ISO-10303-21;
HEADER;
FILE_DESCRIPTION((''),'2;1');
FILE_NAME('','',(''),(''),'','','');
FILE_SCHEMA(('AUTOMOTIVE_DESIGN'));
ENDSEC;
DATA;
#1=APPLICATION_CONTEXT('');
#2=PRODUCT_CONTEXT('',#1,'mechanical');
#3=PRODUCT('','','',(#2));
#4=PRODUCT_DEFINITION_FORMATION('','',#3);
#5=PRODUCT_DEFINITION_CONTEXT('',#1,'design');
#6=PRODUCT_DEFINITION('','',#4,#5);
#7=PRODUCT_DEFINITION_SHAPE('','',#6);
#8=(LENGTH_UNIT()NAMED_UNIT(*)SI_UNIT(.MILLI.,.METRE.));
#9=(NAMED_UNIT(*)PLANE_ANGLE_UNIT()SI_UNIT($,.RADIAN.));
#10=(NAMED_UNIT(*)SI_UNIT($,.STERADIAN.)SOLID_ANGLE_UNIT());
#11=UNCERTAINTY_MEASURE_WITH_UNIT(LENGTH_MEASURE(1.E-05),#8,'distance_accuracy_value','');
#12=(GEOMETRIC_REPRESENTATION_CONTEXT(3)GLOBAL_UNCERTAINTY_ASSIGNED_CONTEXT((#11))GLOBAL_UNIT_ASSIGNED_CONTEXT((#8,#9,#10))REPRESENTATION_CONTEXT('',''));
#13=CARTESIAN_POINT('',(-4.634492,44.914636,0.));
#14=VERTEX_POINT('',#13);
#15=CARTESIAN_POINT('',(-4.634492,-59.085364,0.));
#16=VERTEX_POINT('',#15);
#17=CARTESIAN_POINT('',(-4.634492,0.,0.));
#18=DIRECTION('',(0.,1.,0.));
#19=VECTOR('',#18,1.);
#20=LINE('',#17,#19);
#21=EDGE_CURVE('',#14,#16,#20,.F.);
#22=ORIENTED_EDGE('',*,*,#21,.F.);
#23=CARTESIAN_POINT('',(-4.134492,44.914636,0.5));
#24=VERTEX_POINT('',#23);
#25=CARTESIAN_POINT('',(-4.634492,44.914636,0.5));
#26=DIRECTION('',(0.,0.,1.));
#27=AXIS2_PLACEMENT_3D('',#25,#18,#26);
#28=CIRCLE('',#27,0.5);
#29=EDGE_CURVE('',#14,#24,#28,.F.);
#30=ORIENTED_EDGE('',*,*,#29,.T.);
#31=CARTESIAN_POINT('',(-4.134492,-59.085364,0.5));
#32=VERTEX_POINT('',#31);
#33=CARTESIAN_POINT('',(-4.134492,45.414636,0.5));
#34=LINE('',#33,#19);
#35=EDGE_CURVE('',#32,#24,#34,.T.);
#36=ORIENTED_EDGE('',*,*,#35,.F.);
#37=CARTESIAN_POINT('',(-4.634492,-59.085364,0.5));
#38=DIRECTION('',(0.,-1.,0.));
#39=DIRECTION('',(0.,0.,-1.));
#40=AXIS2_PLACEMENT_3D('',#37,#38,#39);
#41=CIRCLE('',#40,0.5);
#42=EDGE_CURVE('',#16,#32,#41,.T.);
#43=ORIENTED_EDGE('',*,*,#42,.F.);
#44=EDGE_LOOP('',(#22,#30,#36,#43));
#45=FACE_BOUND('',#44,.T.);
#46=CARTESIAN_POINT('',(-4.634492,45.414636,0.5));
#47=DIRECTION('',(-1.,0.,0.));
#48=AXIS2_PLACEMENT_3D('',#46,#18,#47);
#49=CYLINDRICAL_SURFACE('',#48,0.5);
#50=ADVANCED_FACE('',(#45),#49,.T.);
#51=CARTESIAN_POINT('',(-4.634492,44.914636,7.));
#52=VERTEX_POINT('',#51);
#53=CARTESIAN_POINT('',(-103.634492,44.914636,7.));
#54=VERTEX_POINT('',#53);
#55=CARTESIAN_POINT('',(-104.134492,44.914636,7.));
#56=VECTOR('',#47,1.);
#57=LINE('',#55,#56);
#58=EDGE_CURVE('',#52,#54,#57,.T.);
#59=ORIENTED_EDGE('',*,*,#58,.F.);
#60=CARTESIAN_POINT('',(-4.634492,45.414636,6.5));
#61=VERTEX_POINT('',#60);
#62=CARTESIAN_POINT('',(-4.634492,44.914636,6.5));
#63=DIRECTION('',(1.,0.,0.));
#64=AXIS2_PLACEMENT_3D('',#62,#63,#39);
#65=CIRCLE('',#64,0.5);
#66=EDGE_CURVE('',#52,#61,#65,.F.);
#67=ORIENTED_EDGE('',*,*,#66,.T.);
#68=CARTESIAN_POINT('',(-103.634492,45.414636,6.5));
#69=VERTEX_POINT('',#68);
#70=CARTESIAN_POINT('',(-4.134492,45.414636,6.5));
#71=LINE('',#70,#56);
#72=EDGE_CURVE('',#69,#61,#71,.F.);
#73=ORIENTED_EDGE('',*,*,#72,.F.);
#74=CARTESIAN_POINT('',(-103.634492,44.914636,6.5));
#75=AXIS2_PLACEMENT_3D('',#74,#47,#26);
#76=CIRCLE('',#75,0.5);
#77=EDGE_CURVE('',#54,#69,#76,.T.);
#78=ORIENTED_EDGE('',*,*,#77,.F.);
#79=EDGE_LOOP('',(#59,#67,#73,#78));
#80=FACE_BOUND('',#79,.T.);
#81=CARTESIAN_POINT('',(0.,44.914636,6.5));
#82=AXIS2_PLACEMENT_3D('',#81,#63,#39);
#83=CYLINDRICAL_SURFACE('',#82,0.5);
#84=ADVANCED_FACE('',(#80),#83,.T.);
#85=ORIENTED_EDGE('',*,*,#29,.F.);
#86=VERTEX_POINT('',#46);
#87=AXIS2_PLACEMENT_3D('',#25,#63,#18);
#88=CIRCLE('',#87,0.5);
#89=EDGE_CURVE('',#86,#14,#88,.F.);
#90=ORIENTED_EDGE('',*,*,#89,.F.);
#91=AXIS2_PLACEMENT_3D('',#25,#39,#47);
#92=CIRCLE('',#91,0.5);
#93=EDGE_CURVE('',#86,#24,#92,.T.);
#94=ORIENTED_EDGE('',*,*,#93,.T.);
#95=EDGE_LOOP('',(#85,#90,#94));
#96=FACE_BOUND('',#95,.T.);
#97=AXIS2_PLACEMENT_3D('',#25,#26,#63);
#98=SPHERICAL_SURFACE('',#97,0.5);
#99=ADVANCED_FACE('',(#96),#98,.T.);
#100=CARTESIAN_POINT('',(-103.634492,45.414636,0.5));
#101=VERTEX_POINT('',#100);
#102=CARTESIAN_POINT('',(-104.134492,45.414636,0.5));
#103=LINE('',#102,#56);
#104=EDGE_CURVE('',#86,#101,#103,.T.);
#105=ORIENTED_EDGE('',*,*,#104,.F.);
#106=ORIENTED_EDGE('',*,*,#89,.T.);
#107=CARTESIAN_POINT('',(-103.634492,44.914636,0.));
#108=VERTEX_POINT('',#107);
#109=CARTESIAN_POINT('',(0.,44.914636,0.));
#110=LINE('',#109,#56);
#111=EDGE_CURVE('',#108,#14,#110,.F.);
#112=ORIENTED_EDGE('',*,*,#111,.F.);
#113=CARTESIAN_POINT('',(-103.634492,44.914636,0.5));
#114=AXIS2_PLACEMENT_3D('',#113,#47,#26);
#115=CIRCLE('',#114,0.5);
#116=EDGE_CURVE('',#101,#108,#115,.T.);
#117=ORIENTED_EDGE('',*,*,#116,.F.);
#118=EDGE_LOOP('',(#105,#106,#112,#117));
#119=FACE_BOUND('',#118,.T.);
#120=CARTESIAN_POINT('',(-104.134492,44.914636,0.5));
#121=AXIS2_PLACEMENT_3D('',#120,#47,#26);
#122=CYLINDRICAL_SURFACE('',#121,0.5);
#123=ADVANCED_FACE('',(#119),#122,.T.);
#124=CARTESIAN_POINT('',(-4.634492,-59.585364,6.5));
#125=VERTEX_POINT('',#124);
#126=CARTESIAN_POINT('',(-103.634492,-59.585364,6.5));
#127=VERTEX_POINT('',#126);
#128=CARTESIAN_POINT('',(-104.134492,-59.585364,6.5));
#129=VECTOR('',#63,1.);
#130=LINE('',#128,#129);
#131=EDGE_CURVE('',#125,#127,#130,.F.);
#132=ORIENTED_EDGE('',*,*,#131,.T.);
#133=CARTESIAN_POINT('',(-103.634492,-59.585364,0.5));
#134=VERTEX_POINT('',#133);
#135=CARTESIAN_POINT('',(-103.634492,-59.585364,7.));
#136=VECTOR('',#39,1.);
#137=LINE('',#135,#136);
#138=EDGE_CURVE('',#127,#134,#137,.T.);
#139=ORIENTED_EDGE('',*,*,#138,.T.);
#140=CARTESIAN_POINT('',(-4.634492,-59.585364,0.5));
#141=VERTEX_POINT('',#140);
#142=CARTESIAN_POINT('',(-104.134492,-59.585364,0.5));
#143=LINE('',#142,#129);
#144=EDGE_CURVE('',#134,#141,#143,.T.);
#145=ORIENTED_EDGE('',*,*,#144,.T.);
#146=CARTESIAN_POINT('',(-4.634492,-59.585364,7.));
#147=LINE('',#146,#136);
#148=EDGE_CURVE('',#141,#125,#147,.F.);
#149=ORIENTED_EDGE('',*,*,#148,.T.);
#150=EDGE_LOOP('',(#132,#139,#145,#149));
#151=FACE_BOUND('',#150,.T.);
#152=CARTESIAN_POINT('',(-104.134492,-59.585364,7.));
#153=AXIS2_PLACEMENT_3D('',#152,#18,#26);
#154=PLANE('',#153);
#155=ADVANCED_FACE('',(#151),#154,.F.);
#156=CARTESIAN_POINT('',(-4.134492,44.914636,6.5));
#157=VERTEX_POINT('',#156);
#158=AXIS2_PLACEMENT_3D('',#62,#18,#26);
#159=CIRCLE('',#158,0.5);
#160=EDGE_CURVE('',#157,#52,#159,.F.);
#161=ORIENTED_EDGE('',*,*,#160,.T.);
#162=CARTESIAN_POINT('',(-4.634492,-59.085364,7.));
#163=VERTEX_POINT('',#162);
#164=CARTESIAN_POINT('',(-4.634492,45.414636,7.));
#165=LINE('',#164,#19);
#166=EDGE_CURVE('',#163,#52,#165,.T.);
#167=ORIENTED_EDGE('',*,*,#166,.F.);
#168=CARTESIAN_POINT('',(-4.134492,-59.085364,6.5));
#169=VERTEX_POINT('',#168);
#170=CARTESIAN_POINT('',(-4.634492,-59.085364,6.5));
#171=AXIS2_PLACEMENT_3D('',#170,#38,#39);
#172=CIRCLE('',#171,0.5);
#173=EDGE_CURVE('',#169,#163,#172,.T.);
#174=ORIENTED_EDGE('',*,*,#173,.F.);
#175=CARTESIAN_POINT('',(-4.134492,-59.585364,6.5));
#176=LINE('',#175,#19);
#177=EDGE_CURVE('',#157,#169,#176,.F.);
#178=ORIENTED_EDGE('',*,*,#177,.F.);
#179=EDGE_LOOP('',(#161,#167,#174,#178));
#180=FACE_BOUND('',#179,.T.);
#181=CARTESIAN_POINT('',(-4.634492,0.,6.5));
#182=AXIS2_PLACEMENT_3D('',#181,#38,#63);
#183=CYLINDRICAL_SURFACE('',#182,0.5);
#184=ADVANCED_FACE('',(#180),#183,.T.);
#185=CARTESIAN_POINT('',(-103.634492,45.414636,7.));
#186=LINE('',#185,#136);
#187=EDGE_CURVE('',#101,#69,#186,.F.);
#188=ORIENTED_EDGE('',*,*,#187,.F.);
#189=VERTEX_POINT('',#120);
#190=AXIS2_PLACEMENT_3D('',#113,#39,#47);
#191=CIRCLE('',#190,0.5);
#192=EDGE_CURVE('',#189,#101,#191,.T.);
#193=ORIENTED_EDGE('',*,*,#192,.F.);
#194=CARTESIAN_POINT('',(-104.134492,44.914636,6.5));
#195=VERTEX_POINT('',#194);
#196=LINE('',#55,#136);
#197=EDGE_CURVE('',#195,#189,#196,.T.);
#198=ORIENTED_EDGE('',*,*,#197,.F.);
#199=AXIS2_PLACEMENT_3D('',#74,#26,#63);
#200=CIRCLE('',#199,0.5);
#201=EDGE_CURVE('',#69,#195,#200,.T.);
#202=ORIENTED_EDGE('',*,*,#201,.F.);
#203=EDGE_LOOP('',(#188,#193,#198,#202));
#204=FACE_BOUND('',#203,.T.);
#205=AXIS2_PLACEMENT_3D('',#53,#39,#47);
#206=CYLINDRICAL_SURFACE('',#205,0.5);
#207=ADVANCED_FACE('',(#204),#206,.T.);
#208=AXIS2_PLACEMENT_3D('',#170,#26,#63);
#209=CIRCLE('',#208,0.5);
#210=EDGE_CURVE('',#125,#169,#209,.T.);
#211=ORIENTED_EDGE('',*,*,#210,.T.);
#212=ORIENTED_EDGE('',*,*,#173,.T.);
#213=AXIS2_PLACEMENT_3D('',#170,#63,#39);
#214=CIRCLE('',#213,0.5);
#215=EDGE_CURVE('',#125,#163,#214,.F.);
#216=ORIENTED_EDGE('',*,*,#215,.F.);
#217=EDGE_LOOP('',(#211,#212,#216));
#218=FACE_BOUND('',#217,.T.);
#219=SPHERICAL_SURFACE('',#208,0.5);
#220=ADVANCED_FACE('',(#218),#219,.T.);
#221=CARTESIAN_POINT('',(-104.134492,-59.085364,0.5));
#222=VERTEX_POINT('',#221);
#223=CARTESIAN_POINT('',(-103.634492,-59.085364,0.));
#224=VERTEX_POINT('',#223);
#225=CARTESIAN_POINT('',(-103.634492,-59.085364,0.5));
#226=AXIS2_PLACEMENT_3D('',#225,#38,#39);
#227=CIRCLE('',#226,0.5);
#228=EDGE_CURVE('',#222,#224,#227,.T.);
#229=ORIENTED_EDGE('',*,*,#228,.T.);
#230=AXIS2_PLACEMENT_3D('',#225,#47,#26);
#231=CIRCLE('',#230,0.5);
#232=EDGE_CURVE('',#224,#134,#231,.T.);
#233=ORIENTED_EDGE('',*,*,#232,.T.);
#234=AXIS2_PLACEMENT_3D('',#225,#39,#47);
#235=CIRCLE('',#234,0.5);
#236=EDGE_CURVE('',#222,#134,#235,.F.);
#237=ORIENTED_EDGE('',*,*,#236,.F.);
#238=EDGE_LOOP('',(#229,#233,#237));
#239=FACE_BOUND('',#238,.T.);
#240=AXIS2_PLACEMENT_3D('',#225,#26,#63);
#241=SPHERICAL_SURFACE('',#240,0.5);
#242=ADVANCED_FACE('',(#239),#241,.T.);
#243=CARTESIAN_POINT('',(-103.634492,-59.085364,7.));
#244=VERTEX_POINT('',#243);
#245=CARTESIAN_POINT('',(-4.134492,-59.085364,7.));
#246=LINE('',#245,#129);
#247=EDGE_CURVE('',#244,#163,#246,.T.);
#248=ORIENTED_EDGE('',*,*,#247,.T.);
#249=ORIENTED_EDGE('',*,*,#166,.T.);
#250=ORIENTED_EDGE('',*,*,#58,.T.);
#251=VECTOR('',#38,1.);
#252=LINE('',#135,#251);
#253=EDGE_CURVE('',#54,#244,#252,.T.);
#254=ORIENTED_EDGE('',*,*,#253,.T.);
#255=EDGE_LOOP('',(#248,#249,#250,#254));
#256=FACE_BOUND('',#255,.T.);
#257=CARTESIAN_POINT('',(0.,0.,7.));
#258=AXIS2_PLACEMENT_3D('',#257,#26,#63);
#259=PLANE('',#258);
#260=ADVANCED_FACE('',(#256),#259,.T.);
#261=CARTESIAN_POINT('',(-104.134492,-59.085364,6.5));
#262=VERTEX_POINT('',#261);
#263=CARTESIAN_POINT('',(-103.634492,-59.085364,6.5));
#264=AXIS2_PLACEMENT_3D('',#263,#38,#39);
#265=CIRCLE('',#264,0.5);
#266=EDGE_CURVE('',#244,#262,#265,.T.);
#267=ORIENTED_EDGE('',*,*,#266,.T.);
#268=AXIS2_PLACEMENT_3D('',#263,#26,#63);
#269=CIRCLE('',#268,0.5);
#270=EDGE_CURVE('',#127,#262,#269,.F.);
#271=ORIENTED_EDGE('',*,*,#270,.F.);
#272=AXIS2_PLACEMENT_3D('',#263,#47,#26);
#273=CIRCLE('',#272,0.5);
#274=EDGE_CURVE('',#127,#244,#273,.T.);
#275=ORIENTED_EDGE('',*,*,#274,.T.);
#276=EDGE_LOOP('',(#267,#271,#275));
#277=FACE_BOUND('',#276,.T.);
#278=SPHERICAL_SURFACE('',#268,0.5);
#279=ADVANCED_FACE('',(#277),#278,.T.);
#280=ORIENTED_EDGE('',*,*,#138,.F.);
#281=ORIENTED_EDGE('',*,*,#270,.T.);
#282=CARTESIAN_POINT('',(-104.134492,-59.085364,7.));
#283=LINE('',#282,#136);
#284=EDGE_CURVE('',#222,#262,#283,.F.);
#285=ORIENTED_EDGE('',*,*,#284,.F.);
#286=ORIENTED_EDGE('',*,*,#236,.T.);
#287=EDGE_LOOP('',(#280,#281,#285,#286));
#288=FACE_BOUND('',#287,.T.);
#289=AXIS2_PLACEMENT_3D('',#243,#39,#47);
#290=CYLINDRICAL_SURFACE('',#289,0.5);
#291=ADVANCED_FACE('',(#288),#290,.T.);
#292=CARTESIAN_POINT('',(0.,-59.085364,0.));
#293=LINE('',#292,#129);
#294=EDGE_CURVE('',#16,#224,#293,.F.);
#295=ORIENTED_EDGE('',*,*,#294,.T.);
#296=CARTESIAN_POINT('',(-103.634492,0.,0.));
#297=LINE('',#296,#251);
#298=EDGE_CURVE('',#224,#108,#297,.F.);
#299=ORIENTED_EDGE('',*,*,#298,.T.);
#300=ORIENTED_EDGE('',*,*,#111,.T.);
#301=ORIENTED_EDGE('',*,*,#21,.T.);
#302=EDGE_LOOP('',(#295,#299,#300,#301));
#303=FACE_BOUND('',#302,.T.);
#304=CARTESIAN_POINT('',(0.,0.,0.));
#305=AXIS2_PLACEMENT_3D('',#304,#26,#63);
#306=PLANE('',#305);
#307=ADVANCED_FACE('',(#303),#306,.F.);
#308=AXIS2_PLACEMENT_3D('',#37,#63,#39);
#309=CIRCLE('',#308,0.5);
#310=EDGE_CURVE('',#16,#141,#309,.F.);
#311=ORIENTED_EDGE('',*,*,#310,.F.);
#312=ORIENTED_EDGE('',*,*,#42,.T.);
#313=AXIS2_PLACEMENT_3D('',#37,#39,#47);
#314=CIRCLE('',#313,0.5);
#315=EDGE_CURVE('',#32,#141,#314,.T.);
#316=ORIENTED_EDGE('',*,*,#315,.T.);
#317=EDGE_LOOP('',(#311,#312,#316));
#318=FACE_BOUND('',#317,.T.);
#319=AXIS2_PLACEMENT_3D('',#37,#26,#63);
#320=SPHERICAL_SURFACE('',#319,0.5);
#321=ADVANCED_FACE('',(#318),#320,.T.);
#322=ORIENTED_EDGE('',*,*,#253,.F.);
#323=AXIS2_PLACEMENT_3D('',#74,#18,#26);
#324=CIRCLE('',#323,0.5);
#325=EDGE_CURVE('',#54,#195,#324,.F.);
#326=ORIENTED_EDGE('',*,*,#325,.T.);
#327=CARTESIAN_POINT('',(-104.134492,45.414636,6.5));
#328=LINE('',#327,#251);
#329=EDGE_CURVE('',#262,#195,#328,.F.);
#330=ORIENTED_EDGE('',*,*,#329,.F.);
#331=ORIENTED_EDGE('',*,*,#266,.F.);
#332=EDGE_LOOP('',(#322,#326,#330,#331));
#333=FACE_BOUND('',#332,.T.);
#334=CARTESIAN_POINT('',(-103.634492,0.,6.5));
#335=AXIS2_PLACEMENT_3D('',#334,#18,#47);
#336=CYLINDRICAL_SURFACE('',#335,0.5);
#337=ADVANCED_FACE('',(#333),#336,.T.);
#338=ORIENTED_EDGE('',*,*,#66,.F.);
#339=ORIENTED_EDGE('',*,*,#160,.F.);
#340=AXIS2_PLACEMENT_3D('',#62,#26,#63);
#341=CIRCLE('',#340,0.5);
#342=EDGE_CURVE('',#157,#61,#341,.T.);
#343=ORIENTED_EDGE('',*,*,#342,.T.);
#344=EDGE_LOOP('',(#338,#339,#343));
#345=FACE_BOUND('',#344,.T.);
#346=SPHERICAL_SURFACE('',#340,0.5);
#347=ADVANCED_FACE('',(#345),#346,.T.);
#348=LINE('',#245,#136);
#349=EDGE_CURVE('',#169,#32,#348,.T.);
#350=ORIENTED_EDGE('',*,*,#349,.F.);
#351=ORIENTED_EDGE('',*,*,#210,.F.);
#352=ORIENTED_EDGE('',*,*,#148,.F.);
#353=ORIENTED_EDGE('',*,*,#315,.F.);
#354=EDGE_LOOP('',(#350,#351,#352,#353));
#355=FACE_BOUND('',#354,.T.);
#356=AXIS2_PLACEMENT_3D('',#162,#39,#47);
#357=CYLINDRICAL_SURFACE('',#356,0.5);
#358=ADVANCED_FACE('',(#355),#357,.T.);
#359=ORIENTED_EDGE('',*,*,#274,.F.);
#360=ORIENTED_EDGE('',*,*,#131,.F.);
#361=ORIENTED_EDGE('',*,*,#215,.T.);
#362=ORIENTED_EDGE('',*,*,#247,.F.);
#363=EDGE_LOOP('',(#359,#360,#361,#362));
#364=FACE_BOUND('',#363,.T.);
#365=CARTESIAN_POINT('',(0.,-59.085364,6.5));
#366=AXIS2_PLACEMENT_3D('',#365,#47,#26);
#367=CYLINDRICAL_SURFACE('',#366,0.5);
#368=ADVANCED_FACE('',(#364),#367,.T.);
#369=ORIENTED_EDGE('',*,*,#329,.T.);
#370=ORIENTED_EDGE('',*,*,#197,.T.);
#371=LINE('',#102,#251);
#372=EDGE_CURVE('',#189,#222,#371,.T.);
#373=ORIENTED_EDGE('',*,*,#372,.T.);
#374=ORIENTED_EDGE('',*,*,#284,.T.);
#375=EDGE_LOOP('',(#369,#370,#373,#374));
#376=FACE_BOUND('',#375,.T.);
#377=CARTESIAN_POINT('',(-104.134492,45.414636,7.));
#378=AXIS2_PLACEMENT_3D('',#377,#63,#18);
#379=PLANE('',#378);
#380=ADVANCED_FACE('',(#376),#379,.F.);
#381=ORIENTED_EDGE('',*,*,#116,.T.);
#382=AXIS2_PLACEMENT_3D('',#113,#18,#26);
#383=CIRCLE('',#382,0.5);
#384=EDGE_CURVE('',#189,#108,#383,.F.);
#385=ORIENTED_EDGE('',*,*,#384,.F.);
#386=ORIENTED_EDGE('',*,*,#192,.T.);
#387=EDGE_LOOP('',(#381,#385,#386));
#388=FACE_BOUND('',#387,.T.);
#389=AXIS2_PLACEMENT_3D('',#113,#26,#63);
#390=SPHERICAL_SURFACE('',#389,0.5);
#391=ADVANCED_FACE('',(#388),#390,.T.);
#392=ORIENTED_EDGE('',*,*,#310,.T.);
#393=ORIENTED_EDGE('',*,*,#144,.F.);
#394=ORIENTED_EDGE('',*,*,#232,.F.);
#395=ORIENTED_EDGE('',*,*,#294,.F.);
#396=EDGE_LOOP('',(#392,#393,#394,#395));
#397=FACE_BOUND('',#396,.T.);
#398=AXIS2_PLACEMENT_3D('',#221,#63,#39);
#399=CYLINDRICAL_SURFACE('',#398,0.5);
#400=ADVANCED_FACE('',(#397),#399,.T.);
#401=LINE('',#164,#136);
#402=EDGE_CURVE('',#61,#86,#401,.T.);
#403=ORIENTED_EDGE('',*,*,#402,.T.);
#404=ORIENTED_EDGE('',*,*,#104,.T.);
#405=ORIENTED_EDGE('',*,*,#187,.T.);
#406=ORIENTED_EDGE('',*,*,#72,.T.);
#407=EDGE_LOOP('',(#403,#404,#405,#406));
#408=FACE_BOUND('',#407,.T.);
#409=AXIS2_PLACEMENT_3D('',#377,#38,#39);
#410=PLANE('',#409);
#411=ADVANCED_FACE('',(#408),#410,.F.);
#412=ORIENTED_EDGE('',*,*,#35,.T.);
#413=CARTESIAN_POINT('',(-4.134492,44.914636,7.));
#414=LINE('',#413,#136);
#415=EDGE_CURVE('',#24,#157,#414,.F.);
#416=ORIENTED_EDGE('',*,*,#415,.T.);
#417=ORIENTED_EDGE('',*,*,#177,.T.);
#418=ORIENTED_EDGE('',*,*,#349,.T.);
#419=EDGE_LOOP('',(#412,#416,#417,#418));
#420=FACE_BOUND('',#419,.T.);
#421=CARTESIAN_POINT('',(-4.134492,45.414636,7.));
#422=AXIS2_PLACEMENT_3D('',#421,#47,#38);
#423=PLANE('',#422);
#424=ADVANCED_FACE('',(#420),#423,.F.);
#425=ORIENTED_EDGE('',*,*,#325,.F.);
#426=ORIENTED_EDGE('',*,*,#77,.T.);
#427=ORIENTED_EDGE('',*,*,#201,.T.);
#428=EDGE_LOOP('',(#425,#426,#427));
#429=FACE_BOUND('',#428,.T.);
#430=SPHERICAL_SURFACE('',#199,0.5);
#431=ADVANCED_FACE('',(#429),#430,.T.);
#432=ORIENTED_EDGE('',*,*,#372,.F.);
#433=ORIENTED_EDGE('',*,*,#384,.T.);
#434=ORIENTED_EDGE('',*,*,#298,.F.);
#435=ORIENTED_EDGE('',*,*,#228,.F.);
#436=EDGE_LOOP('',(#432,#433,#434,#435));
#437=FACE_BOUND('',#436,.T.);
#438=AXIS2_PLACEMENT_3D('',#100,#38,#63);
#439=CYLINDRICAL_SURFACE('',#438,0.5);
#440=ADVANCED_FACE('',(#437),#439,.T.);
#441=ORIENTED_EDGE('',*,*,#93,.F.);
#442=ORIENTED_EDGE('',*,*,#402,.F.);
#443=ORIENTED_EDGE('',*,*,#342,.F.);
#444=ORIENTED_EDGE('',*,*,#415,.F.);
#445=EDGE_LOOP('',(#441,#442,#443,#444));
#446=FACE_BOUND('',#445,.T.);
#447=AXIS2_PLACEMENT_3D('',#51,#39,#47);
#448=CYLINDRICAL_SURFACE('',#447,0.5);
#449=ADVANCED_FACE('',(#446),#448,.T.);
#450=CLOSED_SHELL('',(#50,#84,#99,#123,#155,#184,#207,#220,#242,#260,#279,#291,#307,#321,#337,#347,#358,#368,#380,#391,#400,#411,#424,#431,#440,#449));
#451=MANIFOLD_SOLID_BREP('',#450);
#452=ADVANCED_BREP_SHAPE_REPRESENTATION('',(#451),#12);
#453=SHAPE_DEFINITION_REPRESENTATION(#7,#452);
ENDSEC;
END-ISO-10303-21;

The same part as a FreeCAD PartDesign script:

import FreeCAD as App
import Part
import Sketcher

V = App.Vector
Q = App.Units.Quantity

doc = App.newDocument("Part")
body = doc.addObject("PartDesign::Body", "Body")

# Sketch on XY plane
sketch1 = doc.addObject("Sketcher::SketchObject", "Sketch")
body.addObject(sketch1)
sketch1.AttachmentSupport = (doc.XY_Plane, [""])
sketch1.MapMode = "FlatFace"
sketch1.addGeometry(Part.LineSegment(V(-104.134492, 45.414636, 0), V(-104.134492, -59.585364, 0)), False)
sketch1.addGeometry(Part.LineSegment(V(-104.134492, -59.585364, 0), V(-4.134492, -59.585364, 0)), False)
sketch1.addGeometry(Part.LineSegment(V(-4.134492, -59.585364, 0), V(-4.134492, 45.414636, 0)), False)
sketch1.addGeometry(Part.LineSegment(V(-4.134492, 45.414636, 0), V(-104.134492, 45.414636, 0)), False)
sketch1.addConstraint(Sketcher.Constraint("Coincident", 0, 2, 1, 1))
sketch1.addConstraint(Sketcher.Constraint("Coincident", 1, 2, 2, 1))
sketch1.addConstraint(Sketcher.Constraint("Coincident", 2, 2, 3, 1))
sketch1.addConstraint(Sketcher.Constraint("Coincident", 3, 2, 0, 1))
sketch1.addConstraint(Sketcher.Constraint("Vertical", 0))
sketch1.addConstraint(Sketcher.Constraint("Horizontal", 1))
sketch1.addConstraint(Sketcher.Constraint("Vertical", 2))
sketch1.addConstraint(Sketcher.Constraint("Horizontal", 3))
sketch1.addConstraint(Sketcher.Constraint("DistanceX", 1, 1, 1, 2, Q("100 mm")))
sketch1.addConstraint(Sketcher.Constraint("DistanceY", 0, 2, 0, 1, Q("105 mm")))
sketch1.addConstraint(Sketcher.Constraint("DistanceX", 0, 2, -1, 1, Q("104.134492 mm")))
sketch1.addConstraint(Sketcher.Constraint("DistanceY", 0, 2, -1, 1, Q("59.585364 mm")))
pad1 = doc.addObject("PartDesign::Pad", "Pad")
body.addObject(pad1)
pad1.Profile = sketch1
pad1.Length = 7
doc.recompute()

fillet = doc.addObject("PartDesign::Fillet", "Fillet")
body.addObject(fillet)
fillet.Base = (pad1, ["Edge1"])
fillet.UseAllEdges = True
fillet.Radius = 0.5

doc.recompute()
